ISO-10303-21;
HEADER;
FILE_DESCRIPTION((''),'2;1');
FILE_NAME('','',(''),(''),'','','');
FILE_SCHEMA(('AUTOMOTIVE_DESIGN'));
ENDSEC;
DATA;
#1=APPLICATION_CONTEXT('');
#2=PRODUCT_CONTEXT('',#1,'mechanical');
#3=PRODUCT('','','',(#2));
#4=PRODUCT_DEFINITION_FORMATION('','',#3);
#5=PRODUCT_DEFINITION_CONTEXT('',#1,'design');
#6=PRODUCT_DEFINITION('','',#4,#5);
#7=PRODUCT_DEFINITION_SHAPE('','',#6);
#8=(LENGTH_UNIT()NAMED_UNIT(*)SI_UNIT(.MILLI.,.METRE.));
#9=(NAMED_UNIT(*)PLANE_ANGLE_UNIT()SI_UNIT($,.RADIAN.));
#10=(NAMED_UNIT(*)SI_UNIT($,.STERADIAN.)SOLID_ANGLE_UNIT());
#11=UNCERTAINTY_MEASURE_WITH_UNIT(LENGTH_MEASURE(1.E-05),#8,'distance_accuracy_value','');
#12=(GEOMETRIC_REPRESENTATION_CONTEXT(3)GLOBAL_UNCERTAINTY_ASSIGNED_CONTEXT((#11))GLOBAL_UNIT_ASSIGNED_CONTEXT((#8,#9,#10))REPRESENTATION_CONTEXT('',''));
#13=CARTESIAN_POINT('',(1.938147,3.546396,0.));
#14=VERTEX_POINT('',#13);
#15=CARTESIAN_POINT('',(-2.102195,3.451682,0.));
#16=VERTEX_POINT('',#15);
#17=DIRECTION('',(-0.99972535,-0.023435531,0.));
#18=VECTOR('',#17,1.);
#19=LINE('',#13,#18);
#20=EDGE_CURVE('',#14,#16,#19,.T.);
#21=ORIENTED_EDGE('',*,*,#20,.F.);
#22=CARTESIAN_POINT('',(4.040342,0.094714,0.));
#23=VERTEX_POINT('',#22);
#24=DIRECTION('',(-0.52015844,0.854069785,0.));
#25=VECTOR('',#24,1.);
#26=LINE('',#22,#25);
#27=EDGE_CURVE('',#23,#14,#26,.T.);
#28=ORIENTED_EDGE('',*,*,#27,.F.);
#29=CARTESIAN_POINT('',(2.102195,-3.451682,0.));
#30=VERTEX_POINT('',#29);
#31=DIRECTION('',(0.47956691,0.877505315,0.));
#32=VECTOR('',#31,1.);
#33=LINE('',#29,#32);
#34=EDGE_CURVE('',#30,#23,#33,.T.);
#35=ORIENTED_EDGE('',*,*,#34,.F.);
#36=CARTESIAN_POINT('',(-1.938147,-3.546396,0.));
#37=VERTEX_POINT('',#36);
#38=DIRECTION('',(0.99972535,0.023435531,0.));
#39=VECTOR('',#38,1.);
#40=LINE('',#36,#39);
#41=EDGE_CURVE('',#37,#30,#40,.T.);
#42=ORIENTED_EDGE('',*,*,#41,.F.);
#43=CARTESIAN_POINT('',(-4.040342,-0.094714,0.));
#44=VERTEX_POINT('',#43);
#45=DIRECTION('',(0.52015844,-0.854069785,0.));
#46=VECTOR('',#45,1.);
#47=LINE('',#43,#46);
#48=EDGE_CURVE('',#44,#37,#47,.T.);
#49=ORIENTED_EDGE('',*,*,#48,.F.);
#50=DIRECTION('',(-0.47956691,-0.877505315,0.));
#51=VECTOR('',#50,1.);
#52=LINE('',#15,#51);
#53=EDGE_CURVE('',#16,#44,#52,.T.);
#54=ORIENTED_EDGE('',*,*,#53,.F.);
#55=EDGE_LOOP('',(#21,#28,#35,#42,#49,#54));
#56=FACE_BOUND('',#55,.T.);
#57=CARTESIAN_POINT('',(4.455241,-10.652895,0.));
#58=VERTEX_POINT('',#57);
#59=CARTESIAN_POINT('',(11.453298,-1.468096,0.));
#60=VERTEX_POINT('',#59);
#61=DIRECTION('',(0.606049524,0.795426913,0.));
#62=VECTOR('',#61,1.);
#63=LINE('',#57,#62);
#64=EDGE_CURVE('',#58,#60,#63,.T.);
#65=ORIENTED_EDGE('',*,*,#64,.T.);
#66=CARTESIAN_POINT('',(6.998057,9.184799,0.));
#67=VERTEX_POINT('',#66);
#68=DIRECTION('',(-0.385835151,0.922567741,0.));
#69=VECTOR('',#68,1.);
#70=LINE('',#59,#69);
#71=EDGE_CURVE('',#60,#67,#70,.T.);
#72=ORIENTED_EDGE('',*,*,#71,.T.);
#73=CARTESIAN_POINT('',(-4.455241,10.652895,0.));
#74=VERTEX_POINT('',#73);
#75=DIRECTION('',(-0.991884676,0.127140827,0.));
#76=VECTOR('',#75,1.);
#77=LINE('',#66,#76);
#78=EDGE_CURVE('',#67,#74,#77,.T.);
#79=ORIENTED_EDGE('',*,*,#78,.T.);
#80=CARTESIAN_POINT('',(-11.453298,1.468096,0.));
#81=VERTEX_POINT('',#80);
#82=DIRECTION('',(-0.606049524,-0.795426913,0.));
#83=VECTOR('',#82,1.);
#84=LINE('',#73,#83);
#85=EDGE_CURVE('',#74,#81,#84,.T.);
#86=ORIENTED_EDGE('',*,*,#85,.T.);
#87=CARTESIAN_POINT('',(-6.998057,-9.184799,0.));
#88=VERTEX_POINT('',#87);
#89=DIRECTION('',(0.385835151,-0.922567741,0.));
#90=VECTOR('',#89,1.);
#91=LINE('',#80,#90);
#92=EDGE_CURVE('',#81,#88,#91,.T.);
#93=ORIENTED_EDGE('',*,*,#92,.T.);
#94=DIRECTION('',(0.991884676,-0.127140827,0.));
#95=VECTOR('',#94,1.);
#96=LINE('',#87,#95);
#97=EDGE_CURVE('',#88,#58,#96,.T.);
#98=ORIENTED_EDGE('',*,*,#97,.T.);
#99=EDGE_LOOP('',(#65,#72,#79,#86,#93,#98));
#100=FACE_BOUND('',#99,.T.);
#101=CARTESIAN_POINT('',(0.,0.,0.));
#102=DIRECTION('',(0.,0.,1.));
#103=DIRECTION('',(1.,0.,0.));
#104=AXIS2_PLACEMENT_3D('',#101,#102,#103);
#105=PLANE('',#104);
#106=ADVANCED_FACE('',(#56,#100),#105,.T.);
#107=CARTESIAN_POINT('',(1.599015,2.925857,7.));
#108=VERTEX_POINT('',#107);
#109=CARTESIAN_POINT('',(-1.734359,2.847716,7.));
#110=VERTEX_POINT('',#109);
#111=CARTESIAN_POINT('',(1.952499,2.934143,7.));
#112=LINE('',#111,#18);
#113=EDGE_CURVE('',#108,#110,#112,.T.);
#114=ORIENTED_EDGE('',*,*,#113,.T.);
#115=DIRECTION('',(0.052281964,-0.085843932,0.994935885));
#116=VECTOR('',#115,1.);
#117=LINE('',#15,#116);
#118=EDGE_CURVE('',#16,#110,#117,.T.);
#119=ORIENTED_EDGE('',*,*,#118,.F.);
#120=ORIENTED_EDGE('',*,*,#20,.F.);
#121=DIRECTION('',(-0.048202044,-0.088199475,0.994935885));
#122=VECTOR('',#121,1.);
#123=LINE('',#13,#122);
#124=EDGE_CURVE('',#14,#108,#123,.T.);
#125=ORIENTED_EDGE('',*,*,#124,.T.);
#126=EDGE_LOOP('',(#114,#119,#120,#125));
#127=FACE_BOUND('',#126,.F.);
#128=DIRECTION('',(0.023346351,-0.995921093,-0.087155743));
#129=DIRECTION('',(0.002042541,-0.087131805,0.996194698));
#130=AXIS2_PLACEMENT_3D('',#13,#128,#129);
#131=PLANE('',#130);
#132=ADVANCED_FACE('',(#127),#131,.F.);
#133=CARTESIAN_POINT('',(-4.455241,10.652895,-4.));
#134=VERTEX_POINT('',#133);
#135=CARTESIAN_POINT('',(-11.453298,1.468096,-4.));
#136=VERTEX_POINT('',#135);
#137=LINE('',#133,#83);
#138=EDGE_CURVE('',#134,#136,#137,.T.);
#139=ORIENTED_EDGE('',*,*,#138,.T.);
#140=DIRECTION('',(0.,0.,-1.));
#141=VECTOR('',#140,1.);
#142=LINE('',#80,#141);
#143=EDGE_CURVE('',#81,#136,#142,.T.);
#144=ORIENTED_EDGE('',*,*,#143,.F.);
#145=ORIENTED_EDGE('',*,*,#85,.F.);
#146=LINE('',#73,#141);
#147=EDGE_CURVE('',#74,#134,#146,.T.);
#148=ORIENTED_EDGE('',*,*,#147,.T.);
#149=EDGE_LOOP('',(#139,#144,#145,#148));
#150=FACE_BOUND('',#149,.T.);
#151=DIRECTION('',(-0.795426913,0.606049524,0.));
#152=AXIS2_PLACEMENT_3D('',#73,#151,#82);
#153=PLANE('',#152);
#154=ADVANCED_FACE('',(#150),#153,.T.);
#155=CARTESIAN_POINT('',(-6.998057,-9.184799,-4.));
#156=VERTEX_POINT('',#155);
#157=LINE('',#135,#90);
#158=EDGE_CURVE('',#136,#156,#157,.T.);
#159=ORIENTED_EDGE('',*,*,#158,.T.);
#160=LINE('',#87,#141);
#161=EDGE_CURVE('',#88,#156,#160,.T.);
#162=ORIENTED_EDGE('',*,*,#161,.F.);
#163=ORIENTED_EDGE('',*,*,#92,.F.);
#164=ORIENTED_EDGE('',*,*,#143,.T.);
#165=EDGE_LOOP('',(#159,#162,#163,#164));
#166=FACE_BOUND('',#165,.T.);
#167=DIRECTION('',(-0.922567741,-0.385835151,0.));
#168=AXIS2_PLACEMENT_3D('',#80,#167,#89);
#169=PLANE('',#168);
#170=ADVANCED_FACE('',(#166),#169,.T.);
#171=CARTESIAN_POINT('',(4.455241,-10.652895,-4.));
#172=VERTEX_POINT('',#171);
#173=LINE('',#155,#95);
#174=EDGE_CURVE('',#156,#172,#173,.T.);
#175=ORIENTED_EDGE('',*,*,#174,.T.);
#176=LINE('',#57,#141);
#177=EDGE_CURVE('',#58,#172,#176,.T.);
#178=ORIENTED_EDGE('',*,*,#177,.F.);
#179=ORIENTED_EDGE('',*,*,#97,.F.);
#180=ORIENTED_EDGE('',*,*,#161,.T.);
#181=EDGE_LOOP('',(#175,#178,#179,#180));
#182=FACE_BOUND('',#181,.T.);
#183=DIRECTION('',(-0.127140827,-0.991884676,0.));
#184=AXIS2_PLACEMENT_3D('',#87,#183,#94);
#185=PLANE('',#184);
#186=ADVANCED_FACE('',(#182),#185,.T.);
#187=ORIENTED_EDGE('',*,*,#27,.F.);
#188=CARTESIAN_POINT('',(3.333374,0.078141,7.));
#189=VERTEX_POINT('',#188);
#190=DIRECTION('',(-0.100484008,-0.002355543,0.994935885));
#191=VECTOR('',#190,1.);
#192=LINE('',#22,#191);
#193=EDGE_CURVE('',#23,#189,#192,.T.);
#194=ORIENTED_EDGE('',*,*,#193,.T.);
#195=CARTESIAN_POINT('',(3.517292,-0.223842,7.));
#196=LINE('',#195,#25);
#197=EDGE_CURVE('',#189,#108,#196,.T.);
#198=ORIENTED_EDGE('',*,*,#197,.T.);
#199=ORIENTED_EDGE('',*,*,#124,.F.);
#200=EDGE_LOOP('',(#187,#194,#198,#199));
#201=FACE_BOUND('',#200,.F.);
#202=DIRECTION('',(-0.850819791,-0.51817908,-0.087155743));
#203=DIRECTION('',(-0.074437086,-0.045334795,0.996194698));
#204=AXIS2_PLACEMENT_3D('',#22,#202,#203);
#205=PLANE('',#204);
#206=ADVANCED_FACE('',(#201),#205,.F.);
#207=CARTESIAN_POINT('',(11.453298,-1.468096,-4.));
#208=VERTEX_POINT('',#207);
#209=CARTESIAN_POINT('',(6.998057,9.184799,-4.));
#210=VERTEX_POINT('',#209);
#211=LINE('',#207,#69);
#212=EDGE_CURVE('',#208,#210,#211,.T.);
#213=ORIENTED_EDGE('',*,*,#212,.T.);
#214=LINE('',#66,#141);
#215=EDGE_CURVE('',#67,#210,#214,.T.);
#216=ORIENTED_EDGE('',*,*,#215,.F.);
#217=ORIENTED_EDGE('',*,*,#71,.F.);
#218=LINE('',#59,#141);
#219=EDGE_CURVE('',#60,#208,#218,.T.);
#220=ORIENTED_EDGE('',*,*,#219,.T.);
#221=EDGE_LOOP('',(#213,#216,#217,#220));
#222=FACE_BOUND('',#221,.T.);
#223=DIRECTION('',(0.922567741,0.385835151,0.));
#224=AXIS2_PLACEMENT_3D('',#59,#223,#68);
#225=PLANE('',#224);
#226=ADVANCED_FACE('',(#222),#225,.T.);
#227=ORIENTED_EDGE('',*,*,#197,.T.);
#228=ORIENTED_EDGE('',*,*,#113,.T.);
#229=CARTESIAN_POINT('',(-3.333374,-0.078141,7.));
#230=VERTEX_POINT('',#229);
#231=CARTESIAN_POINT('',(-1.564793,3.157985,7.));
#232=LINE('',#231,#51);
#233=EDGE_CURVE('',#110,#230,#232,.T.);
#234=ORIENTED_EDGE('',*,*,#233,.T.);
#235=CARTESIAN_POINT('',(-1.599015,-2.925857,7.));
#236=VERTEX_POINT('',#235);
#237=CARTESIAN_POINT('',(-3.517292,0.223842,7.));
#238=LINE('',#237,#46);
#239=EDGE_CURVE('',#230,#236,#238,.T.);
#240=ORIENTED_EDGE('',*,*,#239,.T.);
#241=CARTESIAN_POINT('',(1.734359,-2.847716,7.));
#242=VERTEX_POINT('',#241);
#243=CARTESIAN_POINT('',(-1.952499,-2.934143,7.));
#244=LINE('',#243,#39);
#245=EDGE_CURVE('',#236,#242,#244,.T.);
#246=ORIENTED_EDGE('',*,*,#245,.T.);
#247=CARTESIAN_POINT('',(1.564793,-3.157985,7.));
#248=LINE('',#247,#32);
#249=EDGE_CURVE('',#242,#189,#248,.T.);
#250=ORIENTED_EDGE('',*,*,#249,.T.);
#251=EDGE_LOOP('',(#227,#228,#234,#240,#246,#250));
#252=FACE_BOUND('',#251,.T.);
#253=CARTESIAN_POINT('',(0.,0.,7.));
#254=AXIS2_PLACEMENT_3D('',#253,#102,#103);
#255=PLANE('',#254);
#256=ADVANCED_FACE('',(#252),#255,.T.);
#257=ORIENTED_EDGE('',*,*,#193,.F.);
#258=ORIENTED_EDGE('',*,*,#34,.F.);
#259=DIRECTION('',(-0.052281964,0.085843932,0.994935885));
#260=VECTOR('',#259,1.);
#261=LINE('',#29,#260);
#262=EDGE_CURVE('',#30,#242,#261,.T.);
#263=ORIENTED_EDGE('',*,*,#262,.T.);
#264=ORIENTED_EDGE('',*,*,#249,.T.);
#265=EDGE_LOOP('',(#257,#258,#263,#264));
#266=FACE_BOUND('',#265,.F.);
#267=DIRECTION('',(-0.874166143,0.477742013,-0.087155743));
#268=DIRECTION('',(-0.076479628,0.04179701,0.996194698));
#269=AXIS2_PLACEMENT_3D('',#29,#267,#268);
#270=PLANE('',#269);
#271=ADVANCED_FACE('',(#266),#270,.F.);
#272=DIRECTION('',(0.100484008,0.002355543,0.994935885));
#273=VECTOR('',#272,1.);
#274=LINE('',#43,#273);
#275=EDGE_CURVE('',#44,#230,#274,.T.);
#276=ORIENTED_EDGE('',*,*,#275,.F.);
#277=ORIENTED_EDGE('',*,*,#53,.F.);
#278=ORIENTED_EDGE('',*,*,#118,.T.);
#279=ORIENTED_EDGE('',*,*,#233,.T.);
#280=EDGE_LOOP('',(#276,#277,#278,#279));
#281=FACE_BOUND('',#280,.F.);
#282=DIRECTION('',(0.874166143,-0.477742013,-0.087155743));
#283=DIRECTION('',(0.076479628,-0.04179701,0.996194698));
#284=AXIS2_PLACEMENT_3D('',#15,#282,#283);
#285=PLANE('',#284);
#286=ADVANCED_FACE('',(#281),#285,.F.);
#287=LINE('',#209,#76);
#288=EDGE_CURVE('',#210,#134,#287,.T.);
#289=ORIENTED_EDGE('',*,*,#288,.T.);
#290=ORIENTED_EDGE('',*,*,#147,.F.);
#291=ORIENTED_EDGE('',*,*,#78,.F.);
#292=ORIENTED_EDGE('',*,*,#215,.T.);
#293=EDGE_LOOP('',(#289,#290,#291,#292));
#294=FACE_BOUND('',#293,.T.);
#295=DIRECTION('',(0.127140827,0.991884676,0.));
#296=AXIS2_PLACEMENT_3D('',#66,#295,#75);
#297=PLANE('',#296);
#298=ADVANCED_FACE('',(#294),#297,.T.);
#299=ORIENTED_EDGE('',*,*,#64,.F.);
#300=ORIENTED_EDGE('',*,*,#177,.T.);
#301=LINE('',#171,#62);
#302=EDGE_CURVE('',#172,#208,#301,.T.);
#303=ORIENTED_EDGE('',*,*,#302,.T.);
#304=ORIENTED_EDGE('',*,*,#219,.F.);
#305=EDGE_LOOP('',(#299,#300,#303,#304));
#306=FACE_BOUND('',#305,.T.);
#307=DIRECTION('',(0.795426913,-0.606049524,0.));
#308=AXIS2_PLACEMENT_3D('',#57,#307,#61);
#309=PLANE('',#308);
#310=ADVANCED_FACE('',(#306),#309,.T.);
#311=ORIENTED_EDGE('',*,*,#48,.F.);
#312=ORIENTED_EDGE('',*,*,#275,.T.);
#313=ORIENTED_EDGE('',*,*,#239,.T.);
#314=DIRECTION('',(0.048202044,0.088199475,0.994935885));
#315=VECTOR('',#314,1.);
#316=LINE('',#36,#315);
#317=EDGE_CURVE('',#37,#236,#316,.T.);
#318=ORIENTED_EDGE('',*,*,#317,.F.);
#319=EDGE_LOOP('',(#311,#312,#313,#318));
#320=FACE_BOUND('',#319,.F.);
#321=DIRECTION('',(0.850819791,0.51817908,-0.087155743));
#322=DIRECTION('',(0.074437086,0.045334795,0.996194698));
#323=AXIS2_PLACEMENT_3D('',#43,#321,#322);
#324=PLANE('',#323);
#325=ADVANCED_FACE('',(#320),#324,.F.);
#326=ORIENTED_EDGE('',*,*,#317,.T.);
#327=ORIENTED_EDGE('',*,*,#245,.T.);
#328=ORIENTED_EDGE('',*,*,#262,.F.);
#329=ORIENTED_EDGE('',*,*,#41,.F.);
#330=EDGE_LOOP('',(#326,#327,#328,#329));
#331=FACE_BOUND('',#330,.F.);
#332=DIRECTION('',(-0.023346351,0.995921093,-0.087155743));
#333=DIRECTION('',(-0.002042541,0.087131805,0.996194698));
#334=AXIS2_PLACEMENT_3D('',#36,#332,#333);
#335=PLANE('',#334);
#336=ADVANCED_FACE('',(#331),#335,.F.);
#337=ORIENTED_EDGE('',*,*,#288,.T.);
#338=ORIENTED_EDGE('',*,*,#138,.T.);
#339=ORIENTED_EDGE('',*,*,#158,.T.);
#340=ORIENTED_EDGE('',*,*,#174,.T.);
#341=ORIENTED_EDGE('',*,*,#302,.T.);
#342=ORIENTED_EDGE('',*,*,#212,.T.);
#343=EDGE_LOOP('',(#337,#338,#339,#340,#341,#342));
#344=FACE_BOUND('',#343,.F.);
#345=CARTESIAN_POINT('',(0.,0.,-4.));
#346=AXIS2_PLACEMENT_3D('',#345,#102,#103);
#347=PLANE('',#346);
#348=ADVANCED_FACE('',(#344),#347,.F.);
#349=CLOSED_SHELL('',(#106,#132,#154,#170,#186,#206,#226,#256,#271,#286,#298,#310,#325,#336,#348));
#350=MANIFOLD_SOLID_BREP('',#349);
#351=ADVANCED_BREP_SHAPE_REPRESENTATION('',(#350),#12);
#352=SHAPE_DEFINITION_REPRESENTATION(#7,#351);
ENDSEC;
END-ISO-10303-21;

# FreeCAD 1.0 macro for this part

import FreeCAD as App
import Part
import Sketcher

doc = App.newDocument("Part")
body = doc.addObject("PartDesign::Body", "Body")

sketch1 = doc.addObject("Sketcher::SketchObject", "Sketch")
body.addObject(sketch1)
sketch1.AttachmentSupport = (doc.XY_Plane, [""])
sketch1.MapMode = "FlatFace"
sketch1.addGeometry(Part.LineSegment(App.Vector(2.1, -3.5, 0), App.Vector(4, 0.1, 0)), False)
sketch1.addGeometry(Part.LineSegment(App.Vector(4, 0.1, 0), App.Vector(1.9, 3.5, 0)), False)
sketch1.addGeometry(Part.LineSegment(App.Vector(1.9, 3.5, 0), App.Vector(-2.1, 3.5, 0)), False)
sketch1.addGeometry(Part.LineSegment(App.Vector(-2.1, 3.5, 0), App.Vector(-4, -0.1, 0)), False)
sketch1.addGeometry(Part.LineSegment(App.Vector(-4, -0.1, 0), App.Vector(-1.9, -3.5, 0)), False)
sketch1.addGeometry(Part.LineSegment(App.Vector(-1.9, -3.5, 0), App.Vector(2.1, -3.5, 0)), False)
sketch1.addConstraint(Sketcher.Constraint("Coincident", 0, 2, 1, 1))
sketch1.addConstraint(Sketcher.Constraint("Coincident", 1, 2, 2, 1))
sketch1.addConstraint(Sketcher.Constraint("Coincident", 2, 2, 3, 1))
sketch1.addConstraint(Sketcher.Constraint("Coincident", 3, 2, 4, 1))
sketch1.addConstraint(Sketcher.Constraint("Coincident", 4, 2, 5, 1))
sketch1.addConstraint(Sketcher.Constraint("Coincident", 5, 2, 0, 1))
sketch1.addConstraint(Sketcher.Constraint("Symmetric", 0, 2, 3, 2, -1, 1))
sketch1.addConstraint(Sketcher.Constraint("Symmetric", 1, 2, 4, 2, -1, 1))
sketch1.addConstraint(Sketcher.Constraint("Symmetric", 2, 2, 5, 2, -1, 1))
sketch1.addConstraint(Sketcher.Constraint("Equal", 0, 1))
sketch1.addConstraint(Sketcher.Constraint("Equal", 1, 2))
sketch1.addConstraint(Sketcher.Constraint("Distance", 0, 4.041452))
sketch1.addConstraint(Sketcher.Constraint("DistanceX", -1, 1, 0, 2, 4.040342))
sketch1.addConstraint(Sketcher.Constraint("DistanceY", -1, 1, 2, 2, 3.451682))
sketch1.addConstraint(Sketcher.Constraint("DistanceY", 0, 2, 1, 2, 3.451682))
pad1 = doc.addObject("PartDesign::Pad", "Pad")
body.addObject(pad1)
pad1.Profile = sketch1
pad1.Length = 7
pad1.TaperAngle = -5
pad2 = doc.addObject("PartDesign::Pad", "Pad001")
body.addObject(pad2)
pad2.Profile = sketch1
pad2.Length = 4
pad2.Reversed = True

sketch2 = doc.addObject("Sketcher::SketchObject", "Sketch001")
body.addObject(sketch2)
sketch2.AttachmentSupport = (doc.XY_Plane, [""])
sketch2.MapMode = "FlatFace"
sketch2.addGeometry(Part.LineSegment(App.Vector(4.5, -10.7, 0), App.Vector(11.5, -1.5, 0)), False)
sketch2.addGeometry(Part.LineSegment(App.Vector(11.5, -1.5, 0), App.Vector(7, 9.2, 0)), False)
sketch2.addGeometry(Part.LineSegment(App.Vector(7, 9.2, 0), App.Vector(-4.5, 10.7, 0)), False)
sketch2.addGeometry(Part.LineSegment(App.Vector(-4.5, 10.7, 0), App.Vector(-11.5, 1.5, 0)), False)
sketch2.addGeometry(Part.LineSegment(App.Vector(-11.5, 1.5, 0), App.Vector(-7, -9.2, 0)), False)
sketch2.addGeometry(Part.LineSegment(App.Vector(-7, -9.2, 0), App.Vector(4.5, -10.7, 0)), False)
sketch2.addGeometry(Part.LineSegment(App.Vector(-2.1, 3.5, 0), App.Vector(1.9, 3.5, 0)), False)
sketch2.addGeometry(Part.LineSegment(App.Vector(1.9, 3.5, 0), App.Vector(4, 0.1, 0)), False)
sketch2.addGeometry(Part.LineSegment(App.Vector(4, 0.1, 0), App.Vector(2.1, -3.5, 0)), False)
sketch2.addGeometry(Part.LineSegment(App.Vector(2.1, -3.5, 0), App.Vector(-1.9, -3.5, 0)), False)
sketch2.addGeometry(Part.LineSegment(App.Vector(-1.9, -3.5, 0), App.Vector(-4, -0.1, 0)), False)
sketch2.addGeometry(Part.LineSegment(App.Vector(-4, -0.1, 0), App.Vector(-2.1, 3.5, 0)), False)
sketch2.addConstraint(Sketcher.Constraint("Coincident", 0, 2, 1, 1))
sketch2.addConstraint(Sketcher.Constraint("Coincident", 1, 2, 2, 1))
sketch2.addConstraint(Sketcher.Constraint("Coincident", 2, 2, 3, 1))
sketch2.addConstraint(Sketcher.Constraint("Coincident", 3, 2, 4, 1))
sketch2.addConstraint(Sketcher.Constraint("Coincident", 4, 2, 5, 1))
sketch2.addConstraint(Sketcher.Constraint("Coincident", 5, 2, 0, 1))
sketch2.addConstraint(Sketcher.Constraint("Coincident", 6, 2, 7, 1))
sketch2.addConstraint(Sketcher.Constraint("Coincident", 7, 2, 8, 1))
sketch2.addConstraint(Sketcher.Constraint("Coincident", 8, 2, 9, 1))
sketch2.addConstraint(Sketcher.Constraint("Coincident", 9, 2, 10, 1))
sketch2.addConstraint(Sketcher.Constraint("Coincident", 10, 2, 11, 1))
sketch2.addConstraint(Sketcher.Constraint("Coincident", 11, 2, 6, 1))
sketch2.addConstraint(Sketcher.Constraint("Symmetric", 0, 2, 3, 2, -1, 1))
sketch2.addConstraint(Sketcher.Constraint("Symmetric", 1, 2, 4, 2, -1, 1))
sketch2.addConstraint(Sketcher.Constraint("Symmetric", 2, 2, 5, 2, -1, 1))
sketch2.addConstraint(Sketcher.Constraint("Symmetric", 6, 2, 9, 2, -1, 1))
sketch2.addConstraint(Sketcher.Constraint("Symmetric", 7, 2, 10, 2, -1, 1))
sketch2.addConstraint(Sketcher.Constraint("Symmetric", 8, 2, 11, 2, -1, 1))
sketch2.addConstraint(Sketcher.Constraint("Equal", 0, 1))
sketch2.addConstraint(Sketcher.Constraint("Equal", 1, 2))
sketch2.addConstraint(Sketcher.Constraint("Equal", 6, 7))
sketch2.addConstraint(Sketcher.Constraint("Equal", 7, 8))
sketch2.addConstraint(Sketcher.Constraint("DistanceY", -1, 1, 1, 2, 9.184799))
sketch2.addConstraint(Sketcher.Constraint("DistanceY", 3, 2, 2, 2, 9.184799))
sketch2.addConstraint(Sketcher.Constraint("DistanceY", 6, 2, 2, 2, 7.106499))
sketch2.addConstraint(Sketcher.Constraint("DistanceX", 7, 2, 5, 2, 0.414899))
sketch2.addConstraint(Sketcher.Constraint("Distance", 6, 4.041452))
sketch2.addConstraint(Sketcher.Constraint("DistanceX", 2, 2, -1, 1, 4.455241))
sketch2.addConstraint(Sketcher.Constraint("DistanceY", 8, 2, -1, 1, 3.451682))
sketch2.addConstraint(Sketcher.Constraint("DistanceX", 1, 2, 0, 2, 4.455241))
pad3 = doc.addObject("PartDesign::Pad", "Pad002")
body.addObject(pad3)
pad3.Profile = sketch2
pad3.Length = 4
pad3.Reversed = True

doc.recompute()
